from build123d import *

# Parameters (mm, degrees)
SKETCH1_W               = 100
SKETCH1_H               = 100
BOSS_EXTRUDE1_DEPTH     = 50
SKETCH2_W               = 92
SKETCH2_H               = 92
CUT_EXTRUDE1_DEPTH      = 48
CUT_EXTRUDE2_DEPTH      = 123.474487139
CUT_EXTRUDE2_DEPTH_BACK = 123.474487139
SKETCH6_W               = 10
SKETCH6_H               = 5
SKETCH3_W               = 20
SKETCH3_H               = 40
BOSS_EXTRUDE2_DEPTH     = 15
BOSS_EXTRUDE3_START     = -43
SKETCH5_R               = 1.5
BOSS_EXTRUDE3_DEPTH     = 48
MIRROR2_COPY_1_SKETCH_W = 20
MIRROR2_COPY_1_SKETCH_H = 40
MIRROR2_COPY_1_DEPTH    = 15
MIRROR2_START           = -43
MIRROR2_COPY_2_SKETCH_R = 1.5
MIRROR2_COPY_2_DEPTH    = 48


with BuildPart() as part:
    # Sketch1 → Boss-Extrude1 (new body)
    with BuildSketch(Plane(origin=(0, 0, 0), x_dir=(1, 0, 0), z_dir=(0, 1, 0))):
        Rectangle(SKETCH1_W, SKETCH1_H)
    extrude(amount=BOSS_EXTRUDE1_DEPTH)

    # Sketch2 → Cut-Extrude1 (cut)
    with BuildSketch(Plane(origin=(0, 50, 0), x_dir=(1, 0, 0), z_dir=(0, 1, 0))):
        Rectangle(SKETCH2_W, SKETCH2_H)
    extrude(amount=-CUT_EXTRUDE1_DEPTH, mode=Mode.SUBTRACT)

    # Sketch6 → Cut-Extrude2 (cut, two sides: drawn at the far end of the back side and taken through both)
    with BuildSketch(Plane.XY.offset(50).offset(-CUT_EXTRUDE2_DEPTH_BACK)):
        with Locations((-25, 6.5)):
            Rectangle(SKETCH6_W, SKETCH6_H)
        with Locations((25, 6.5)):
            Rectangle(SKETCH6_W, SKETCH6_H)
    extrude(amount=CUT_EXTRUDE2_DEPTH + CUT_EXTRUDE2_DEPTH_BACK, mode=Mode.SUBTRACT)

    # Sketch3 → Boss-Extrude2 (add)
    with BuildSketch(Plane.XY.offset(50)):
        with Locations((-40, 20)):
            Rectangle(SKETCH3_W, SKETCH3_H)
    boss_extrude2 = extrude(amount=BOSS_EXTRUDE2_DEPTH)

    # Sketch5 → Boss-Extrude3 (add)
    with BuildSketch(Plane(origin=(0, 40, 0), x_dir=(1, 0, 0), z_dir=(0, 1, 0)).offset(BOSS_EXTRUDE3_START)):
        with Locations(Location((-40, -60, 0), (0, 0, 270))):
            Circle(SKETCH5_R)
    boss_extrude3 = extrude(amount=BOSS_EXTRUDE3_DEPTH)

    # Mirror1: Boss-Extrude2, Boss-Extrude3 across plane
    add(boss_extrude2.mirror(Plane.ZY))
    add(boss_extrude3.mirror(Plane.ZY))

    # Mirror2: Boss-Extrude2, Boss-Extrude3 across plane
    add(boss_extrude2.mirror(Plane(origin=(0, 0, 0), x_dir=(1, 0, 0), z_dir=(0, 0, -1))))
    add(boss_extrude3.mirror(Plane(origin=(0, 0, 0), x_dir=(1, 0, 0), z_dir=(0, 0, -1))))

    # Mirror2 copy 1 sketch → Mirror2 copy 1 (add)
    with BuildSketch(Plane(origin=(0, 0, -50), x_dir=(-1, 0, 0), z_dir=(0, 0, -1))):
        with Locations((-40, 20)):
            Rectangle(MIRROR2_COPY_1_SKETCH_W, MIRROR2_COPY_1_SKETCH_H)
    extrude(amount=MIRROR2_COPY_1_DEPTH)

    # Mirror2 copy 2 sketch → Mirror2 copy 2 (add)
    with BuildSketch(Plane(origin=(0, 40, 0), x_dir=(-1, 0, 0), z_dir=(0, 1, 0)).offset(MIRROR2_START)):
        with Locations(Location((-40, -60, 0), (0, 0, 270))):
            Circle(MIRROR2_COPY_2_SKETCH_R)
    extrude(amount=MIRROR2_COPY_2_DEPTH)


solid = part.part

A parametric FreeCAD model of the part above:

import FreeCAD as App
import Part
import Sketcher
Q = App.Units.Quantity


def add_polygon(sketch, points):
    """Adds a closed chain of lines whose ends are joined by coincident constraints."""
    first, n = sketch.GeometryCount, len(points)
    for a, b in zip(points, points[1:] + points[:1]):
        sketch.addGeometry(Part.LineSegment(App.Vector(*a, 0), App.Vector(*b, 0)), False)
    for i in range(n):
        sketch.addConstraint(Sketcher.Constraint("Coincident", first + i, 2, first + (i + 1) % n, 1))

doc = App.newDocument("Part")
body = doc.addObject("PartDesign::Body", "Body")

# Sketch on XZ plane
sketch1 = doc.addObject("Sketcher::SketchObject", "Sketch")
body.addObject(sketch1)
sketch1.AttachmentSupport = (doc.XZ_Plane, [""])
sketch1.MapMode = "FlatFace"
add_polygon(sketch1, [(-50, -50), (-50, 50), (50, 50), (50, -50)])  # lines 0-3
sketch1.addConstraint(Sketcher.Constraint("Vertical", 0))
sketch1.addConstraint(Sketcher.Constraint("Horizontal", 1))
sketch1.addConstraint(Sketcher.Constraint("Vertical", 2))
sketch1.addConstraint(Sketcher.Constraint("Horizontal", 3))
sketch1.addConstraint(Sketcher.Constraint("Symmetric", 0, 2, 2, 2, -1, 1))
sketch1.addConstraint(Sketcher.Constraint("Equal", 3, 0))
sketch1.addConstraint(Sketcher.Constraint("DistanceX", 1, 1, 1, 2, Q("100 mm")))
pad1 = doc.addObject("PartDesign::Pad", "Pad")
body.addObject(pad1)
pad1.Profile = sketch1
pad1.Length = 50
pad1.Reversed = True

# Sketch on XZ plane
sketch2 = doc.addObject("Sketcher::SketchObject", "Sketch001")
body.addObject(sketch2)
sketch2.AttachmentSupport = (doc.XZ_Plane, [""])
sketch2.MapMode = "FlatFace"
sketch2.AttachmentOffset = App.Placement(App.Vector(0, 0, -50), App.Rotation())
add_polygon(sketch2, [(-46, -46), (-46, 46), (46, 46), (46, -46)])  # lines 0-3
sketch2.addConstraint(Sketcher.Constraint("Vertical", 0))
sketch2.addConstraint(Sketcher.Constraint("Horizontal", 1))
sketch2.addConstraint(Sketcher.Constraint("Vertical", 2))
sketch2.addConstraint(Sketcher.Constraint("Horizontal", 3))
sketch2.addConstraint(Sketcher.Constraint("Symmetric", 0, 2, 2, 2, -1, 1))
sketch2.addConstraint(Sketcher.Constraint("Equal", 3, 0))
sketch2.addConstraint(Sketcher.Constraint("DistanceX", 1, 1, 1, 2, Q("92 mm")))
pocket1 = doc.addObject("PartDesign::Pocket", "Pocket")
body.addObject(pocket1)
pocket1.Profile = sketch2
pocket1.Length = 48
pocket1.Reversed = True

# Sketch on XY plane
sketch3 = doc.addObject("Sketcher::SketchObject", "Sketch002")
body.addObject(sketch3)
sketch3.AttachmentSupport = (doc.XY_Plane, [""])
sketch3.MapMode = "FlatFace"
sketch3.AttachmentOffset = App.Placement(App.Vector(0, 0, 50), App.Rotation())
add_polygon(sketch3, [(-30, 9), (-30, 4), (-20, 4), (-20, 9)])  # lines 0-3
add_polygon(sketch3, [(20, 9), (20, 4), (30, 4), (30, 9)])  # lines 4-7
sketch3.addConstraint(Sketcher.Constraint("Vertical", 0))
sketch3.addConstraint(Sketcher.Constraint("Horizontal", 1))
sketch3.addConstraint(Sketcher.Constraint("Vertical", 2))
sketch3.addConstraint(Sketcher.Constraint("Horizontal", 3))
sketch3.addConstraint(Sketcher.Constraint("Vertical", 4))
sketch3.addConstraint(Sketcher.Constraint("Horizontal", 5))
sketch3.addConstraint(Sketcher.Constraint("Vertical", 6))
sketch3.addConstraint(Sketcher.Constraint("Horizontal", 7))
sketch3.addConstraint(Sketcher.Constraint("Symmetric", 1, 2, 4, 2, -2))
sketch3.addConstraint(Sketcher.Constraint("Symmetric", 3, 2, 6, 2, -2))
sketch3.addConstraint(Sketcher.Constraint("DistanceX", 1, 1, 1, 2, Q("10 mm")))
sketch3.addConstraint(Sketcher.Constraint("DistanceY", 0, 2, 0, 1, Q("5 mm")))
sketch3.addConstraint(Sketcher.Constraint("DistanceX", 0, 2, -1, 1, Q("30 mm")))
sketch3.addConstraint(Sketcher.Constraint("DistanceY", -1, 1, 0, 2, Q("4 mm")))
pocket2 = doc.addObject("PartDesign::Pocket", "Pocket001")
body.addObject(pocket2)
pocket2.Profile = sketch3
pocket2.Type = "ThroughAll"
pocket2.Midplane = True

# Sketch on XY plane
sketch4 = doc.addObject("Sketcher::SketchObject", "Sketch003")
body.addObject(sketch4)
sketch4.AttachmentSupport = (doc.XY_Plane, [""])
sketch4.MapMode = "FlatFace"
sketch4.AttachmentOffset = App.Placement(App.Vector(0, 0, 50), App.Rotation())
add_polygon(sketch4, [(-50, 40), (-50, 0), (-30, 0), (-30, 40)])  # lines 0-3
sketch4.addConstraint(Sketcher.Constraint("Vertical", 0))
sketch4.addConstraint(Sketcher.Constraint("Horizontal", 1))
sketch4.addConstraint(Sketcher.Constraint("Vertical", 2))
sketch4.addConstraint(Sketcher.Constraint("Horizontal", 3))
sketch4.addConstraint(Sketcher.Constraint("PointOnObject", 0, 2, -1))
sketch4.addConstraint(Sketcher.Constraint("DistanceX", 1, 1, 1, 2, Q("20 mm")))
sketch4.addConstraint(Sketcher.Constraint("DistanceY", 0, 2, 0, 1, Q("40 mm")))
sketch4.addConstraint(Sketcher.Constraint("DistanceX", 0, 2, -1, 1, Q("50 mm")))
pad2 = doc.addObject("PartDesign::Pad", "Pad001")
body.addObject(pad2)
pad2.Profile = sketch4
pad2.Length = 15

# Sketch on XZ plane
sketch5 = doc.addObject("Sketcher::SketchObject", "Sketch004")
body.addObject(sketch5)
sketch5.AttachmentSupport = (doc.XZ_Plane, [""])
sketch5.MapMode = "FlatFace"
sketch5.AttachmentOffset = App.Placement(App.Vector(0, 0, 3), App.Rotation())
sketch5.addGeometry(Part.Circle(App.Vector(-40, 60, 0), App.Vector(0, 0, 1), 1.5), False)
sketch5.addConstraint(Sketcher.Constraint("Diameter", 0, Q("3 mm")))
sketch5.addConstraint(Sketcher.Constraint("DistanceX", 0, 3, -1, 1, Q("40 mm")))
sketch5.addConstraint(Sketcher.Constraint("DistanceY", -1, 1, 0, 3, Q("60 mm")))
pad3 = doc.addObject("PartDesign::Pad", "Pad002")
body.addObject(pad3)
pad3.Profile = sketch5
pad3.Length = 48
pad3.Reversed = True
doc.recompute()

mirrored = doc.addObject("PartDesign::Mirrored", "Mirrored")
body.addObject(mirrored)
mirrored.Originals = [pad2, pad3]
mirrored.MirrorPlane = (doc.YZ_Plane, [""])
body.Tip = mirrored
doc.recompute()

mirrored2 = doc.addObject("PartDesign::Mirrored", "Mirrored001")
body.addObject(mirrored2)
mirrored2.Originals = [pad2, pad3]
mirrored2.MirrorPlane = (doc.XY_Plane, [""])
body.Tip = mirrored2

# Sketch on XY plane
sketch6 = doc.addObject("Sketcher::SketchObject", "Sketch005")
body.addObject(sketch6)
sketch6.AttachmentSupport = (doc.XY_Plane, [""])
sketch6.MapMode = "FlatFace"
sketch6.AttachmentOffset = App.Placement(App.Vector(0, 0, -50), App.Rotation())
add_polygon(sketch6, [(50, 40), (50, 0), (30, 0), (30, 40)])  # lines 0-3
sketch6.addConstraint(Sketcher.Constraint("Vertical", 0))
sketch6.addConstraint(Sketcher.Constraint("Horizontal", 1))
sketch6.addConstraint(Sketcher.Constraint("Vertical", 2))
sketch6.addConstraint(Sketcher.Constraint("Horizontal", 3))
sketch6.addConstraint(Sketcher.Constraint("PointOnObject", 0, 2, -1))
sketch6.addConstraint(Sketcher.Constraint("DistanceX", 1, 2, 1, 1, Q("20 mm")))
sketch6.addConstraint(Sketcher.Constraint("DistanceY", 0, 2, 0, 1, Q("40 mm")))
sketch6.addConstraint(Sketcher.Constraint("DistanceX", -1, 1, 0, 2, Q("50 mm")))
pad4 = doc.addObject("PartDesign::Pad", "Pad003")
body.addObject(pad4)
pad4.Profile = sketch6
pad4.Length = 15
pad4.Reversed = True

# Sketch on XZ plane
sketch7 = doc.addObject("Sketcher::SketchObject", "Sketch006")
body.addObject(sketch7)
sketch7.AttachmentSupport = (doc.XZ_Plane, [""])
sketch7.MapMode = "FlatFace"
sketch7.AttachmentOffset = App.Placement(App.Vector(0, 0, 3), App.Rotation())
sketch7.addGeometry(Part.Circle(App.Vector(40, -60, 0), App.Vector(0, 0, 1), 1.5), False)
sketch7.addConstraint(Sketcher.Constraint("Diameter", 0, Q("3 mm")))
sketch7.addConstraint(Sketcher.Constraint("DistanceX", -1, 1, 0, 3, Q("40 mm")))
sketch7.addConstraint(Sketcher.Constraint("DistanceY", 0, 3, -1, 1, Q("60 mm")))
pad5 = doc.addObject("PartDesign::Pad", "Pad004")
body.addObject(pad5)
pad5.Profile = sketch7
pad5.Length = 48
pad5.Reversed = True

doc.recompute()
